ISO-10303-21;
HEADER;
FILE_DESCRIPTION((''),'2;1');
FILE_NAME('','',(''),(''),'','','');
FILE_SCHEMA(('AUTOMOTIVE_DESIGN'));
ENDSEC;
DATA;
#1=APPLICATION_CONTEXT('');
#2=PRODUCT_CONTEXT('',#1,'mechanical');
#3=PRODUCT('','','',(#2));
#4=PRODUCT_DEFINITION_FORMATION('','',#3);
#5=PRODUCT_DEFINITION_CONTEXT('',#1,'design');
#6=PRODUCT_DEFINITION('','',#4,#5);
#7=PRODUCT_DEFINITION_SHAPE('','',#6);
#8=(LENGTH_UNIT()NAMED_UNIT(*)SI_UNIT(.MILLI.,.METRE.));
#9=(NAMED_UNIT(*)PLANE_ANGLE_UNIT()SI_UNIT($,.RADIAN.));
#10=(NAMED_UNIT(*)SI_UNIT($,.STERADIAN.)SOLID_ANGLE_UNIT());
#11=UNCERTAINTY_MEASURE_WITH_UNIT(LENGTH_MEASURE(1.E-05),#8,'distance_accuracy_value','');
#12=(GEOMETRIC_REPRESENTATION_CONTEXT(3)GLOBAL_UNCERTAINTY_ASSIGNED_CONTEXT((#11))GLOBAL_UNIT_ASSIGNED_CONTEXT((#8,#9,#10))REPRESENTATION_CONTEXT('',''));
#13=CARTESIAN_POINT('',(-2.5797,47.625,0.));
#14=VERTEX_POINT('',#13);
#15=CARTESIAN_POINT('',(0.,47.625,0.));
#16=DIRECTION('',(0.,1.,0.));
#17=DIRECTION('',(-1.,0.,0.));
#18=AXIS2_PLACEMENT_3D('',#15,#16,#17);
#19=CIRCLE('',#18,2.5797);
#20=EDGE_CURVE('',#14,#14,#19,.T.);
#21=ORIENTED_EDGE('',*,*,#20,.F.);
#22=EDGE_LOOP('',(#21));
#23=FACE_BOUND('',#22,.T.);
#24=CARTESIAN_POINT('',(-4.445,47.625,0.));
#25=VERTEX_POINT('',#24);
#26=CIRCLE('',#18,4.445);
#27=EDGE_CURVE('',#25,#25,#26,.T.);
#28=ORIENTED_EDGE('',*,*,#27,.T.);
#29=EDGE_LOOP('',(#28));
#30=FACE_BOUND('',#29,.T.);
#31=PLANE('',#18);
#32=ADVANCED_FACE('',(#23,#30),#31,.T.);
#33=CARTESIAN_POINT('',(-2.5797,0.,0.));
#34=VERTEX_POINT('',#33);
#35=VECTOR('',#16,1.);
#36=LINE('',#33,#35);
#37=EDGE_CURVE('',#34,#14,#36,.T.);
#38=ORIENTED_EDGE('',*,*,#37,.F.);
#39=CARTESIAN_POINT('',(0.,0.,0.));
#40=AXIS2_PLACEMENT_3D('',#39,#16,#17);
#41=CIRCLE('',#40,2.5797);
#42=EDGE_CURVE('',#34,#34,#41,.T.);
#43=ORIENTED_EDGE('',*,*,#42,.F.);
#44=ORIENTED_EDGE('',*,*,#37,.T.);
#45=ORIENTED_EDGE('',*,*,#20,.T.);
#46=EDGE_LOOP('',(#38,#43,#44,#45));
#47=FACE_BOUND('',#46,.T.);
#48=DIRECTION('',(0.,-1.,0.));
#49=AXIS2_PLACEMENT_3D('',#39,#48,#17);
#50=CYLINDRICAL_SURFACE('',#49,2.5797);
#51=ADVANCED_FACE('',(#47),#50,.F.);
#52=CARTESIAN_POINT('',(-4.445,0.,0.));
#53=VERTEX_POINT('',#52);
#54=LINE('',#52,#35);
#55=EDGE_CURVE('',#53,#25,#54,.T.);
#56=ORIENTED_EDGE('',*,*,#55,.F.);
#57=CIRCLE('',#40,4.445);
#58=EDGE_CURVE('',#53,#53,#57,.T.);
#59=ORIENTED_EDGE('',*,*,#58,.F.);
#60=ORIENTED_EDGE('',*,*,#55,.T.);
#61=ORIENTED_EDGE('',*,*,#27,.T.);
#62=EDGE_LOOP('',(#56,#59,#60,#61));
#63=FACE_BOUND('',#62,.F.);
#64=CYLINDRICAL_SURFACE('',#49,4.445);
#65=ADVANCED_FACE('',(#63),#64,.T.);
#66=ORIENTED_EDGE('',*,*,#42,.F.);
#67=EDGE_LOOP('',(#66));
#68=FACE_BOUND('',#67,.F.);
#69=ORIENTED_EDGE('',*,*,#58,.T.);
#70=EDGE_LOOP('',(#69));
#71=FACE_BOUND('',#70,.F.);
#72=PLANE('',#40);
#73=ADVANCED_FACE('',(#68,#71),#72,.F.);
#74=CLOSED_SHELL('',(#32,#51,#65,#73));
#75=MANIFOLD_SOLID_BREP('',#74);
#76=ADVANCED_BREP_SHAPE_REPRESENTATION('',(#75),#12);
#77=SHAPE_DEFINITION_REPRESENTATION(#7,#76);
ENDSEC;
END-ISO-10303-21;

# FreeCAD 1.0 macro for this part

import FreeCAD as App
import Part
import Sketcher

V = App.Vector
Q = App.Units.Quantity

doc = App.newDocument("Part")
body = doc.addObject("PartDesign::Body", "Body")

# Sketch on XZ plane
sketch1 = body.newObject("Sketcher::SketchObject", "Sketch")
sketch1.AttachmentSupport = (doc.getObject("XZ_Plane"), [""])
sketch1.MapMode = "FlatFace"
sketch1.addGeometry(Part.Circle(V(0, 0, 0), V(0, 0, 1), 4.4), False)
sketch1.addGeometry(Part.Circle(V(0, 0, 0), V(0, 0, 1), 2.6), False)
sketch1.addConstraint(Sketcher.Constraint("Coincident", 0, 3, -1, 1))
sketch1.addConstraint(Sketcher.Constraint("Coincident", 1, 3, -1, 1))
sketch1.addConstraint(Sketcher.Constraint("Diameter", 0, Q("0.35 in")))
sketch1.addConstraint(Sketcher.Constraint("Diameter", 1, Q("0.203126 in")))
pad1 = body.newObject("PartDesign::Pad", "Pad")
pad1.Profile = sketch1
pad1.Length = Q("1.875 in")
pad1.Reversed = True

doc.recompute()
